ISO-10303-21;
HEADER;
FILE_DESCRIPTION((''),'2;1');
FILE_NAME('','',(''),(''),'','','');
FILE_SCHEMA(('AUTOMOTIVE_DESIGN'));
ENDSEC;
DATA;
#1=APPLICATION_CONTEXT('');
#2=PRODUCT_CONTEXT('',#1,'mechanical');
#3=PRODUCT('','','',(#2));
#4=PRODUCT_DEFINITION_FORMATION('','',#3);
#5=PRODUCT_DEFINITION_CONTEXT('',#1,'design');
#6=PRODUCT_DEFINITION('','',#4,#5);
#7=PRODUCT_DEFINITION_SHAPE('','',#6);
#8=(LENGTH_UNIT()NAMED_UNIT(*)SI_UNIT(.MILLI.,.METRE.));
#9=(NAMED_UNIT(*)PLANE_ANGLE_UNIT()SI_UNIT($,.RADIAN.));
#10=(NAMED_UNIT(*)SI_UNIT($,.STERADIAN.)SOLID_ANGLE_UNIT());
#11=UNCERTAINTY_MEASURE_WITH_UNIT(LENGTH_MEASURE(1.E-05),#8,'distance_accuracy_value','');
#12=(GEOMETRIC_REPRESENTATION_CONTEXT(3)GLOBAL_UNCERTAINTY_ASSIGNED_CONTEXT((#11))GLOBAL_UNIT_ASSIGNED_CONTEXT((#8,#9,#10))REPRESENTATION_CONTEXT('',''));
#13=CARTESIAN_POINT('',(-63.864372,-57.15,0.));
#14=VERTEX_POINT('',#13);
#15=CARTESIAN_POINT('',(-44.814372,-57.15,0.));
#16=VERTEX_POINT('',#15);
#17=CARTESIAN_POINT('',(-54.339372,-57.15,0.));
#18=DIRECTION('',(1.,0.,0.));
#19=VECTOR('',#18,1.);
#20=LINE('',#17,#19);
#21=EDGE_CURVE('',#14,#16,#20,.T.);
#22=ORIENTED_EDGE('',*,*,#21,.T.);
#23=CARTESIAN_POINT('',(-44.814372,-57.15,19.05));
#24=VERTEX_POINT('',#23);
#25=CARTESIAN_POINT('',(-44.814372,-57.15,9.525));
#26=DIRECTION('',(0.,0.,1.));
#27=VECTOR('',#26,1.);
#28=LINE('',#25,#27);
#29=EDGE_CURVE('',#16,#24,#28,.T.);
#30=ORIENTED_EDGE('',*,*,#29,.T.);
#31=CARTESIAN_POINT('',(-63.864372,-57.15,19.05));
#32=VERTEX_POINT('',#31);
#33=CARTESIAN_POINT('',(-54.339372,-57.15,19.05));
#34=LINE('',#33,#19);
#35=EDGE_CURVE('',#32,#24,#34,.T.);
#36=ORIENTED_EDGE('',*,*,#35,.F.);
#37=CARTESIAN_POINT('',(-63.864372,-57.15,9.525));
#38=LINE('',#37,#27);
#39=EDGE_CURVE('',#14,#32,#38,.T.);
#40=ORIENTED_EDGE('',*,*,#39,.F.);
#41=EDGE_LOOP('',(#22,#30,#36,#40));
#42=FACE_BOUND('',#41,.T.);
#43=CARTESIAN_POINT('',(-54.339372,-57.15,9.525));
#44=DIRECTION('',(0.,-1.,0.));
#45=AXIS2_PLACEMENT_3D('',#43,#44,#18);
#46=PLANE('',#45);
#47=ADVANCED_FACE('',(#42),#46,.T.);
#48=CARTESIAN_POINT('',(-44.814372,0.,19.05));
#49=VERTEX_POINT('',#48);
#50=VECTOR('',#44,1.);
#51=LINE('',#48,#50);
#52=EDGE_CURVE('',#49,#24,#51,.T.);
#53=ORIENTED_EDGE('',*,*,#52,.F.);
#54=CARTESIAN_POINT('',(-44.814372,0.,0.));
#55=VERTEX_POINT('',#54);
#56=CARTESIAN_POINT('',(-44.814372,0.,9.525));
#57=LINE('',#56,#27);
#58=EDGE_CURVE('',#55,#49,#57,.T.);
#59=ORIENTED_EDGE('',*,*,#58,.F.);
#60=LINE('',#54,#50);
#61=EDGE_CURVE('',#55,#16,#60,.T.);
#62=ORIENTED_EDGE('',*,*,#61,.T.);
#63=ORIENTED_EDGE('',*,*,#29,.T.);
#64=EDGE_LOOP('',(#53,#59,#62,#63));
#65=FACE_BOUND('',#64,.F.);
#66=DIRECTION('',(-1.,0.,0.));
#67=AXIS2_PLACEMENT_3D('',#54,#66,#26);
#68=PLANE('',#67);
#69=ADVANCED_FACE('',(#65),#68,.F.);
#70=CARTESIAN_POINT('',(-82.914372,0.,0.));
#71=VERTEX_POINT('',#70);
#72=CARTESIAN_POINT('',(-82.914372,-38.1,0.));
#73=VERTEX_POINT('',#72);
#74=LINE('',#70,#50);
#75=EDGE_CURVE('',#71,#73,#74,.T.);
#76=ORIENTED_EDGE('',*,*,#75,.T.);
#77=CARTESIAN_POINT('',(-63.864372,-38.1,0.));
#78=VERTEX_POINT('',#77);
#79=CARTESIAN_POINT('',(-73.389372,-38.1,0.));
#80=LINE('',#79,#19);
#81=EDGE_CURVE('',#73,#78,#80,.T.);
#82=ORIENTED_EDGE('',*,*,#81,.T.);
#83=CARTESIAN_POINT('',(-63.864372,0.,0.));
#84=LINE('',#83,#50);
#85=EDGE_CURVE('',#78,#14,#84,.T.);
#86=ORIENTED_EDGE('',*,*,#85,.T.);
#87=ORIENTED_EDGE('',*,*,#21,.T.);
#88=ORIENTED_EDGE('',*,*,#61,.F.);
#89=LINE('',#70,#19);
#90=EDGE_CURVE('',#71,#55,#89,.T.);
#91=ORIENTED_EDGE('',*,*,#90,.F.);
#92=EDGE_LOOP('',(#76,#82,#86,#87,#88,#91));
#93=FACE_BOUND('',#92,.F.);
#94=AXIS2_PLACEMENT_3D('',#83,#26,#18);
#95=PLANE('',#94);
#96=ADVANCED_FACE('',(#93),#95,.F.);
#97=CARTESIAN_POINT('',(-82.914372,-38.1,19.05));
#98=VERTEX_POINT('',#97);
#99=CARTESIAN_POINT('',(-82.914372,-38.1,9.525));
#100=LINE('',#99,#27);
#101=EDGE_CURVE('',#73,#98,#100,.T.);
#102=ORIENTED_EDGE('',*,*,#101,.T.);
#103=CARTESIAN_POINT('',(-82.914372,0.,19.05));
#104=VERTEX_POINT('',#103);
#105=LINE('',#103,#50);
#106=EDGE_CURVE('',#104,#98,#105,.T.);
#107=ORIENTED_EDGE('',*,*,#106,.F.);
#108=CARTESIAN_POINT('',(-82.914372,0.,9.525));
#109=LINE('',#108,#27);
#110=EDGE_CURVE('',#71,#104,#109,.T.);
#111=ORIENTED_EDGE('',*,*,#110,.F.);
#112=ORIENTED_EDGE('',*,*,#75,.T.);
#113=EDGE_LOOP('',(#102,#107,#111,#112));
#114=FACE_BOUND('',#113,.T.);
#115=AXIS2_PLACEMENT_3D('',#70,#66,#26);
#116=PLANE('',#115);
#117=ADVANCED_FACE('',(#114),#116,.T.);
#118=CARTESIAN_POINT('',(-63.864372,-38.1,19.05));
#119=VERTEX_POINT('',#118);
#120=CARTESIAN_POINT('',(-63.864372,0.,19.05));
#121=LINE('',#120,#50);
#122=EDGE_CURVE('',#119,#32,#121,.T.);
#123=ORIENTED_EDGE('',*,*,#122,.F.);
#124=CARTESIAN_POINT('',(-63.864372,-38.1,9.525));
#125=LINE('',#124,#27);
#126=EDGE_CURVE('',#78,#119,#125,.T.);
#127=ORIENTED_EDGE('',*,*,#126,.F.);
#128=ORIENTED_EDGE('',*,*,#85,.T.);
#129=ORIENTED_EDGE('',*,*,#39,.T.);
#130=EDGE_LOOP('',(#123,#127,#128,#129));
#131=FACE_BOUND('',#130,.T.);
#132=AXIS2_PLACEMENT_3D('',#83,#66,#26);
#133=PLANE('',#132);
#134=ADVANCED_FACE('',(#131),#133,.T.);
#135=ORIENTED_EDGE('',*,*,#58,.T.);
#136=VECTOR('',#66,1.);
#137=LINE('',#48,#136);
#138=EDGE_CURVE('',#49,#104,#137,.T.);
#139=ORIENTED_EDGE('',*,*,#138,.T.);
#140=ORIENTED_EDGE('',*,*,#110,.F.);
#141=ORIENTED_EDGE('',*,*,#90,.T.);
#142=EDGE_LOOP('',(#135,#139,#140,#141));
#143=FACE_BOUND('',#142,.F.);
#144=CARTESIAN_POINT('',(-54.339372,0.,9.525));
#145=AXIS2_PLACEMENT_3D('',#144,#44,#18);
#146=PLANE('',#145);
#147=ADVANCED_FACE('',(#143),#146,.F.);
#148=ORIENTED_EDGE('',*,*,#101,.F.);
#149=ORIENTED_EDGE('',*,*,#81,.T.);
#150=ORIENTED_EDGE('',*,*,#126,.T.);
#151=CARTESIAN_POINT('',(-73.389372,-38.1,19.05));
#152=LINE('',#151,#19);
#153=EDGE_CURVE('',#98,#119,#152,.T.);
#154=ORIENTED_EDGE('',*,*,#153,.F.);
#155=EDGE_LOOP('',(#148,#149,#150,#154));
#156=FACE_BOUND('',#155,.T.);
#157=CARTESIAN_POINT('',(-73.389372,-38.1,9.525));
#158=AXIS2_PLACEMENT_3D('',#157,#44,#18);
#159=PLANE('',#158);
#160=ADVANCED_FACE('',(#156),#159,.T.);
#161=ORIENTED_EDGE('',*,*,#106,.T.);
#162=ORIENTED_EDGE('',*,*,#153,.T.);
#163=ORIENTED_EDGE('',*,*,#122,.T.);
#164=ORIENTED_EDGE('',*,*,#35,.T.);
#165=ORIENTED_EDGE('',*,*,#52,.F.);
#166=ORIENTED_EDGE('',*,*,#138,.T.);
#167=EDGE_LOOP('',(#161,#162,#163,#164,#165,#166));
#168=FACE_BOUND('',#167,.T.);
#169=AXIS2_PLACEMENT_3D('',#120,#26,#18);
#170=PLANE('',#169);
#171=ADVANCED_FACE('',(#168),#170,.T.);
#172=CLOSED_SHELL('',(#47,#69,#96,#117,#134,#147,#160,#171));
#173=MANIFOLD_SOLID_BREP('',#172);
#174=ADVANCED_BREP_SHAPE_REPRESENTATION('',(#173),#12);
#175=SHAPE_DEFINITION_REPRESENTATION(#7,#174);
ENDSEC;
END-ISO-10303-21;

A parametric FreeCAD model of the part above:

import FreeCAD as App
import Part
import Sketcher
Q = App.Units.Quantity


def add_polygon(sketch, points):
    """Adds a closed chain of lines whose ends are joined by coincident constraints."""
    first, n = sketch.GeometryCount, len(points)
    for a, b in zip(points, points[1:] + points[:1]):
        sketch.addGeometry(Part.LineSegment(App.Vector(*a, 0), App.Vector(*b, 0)), False)
    for i in range(n):
        sketch.addConstraint(Sketcher.Constraint("Coincident", first + i, 2, first + (i + 1) % n, 1))

doc = App.newDocument("Part")
body = doc.addObject("PartDesign::Body", "Body")

# Sketch on XZ plane
sketch1 = body.newObject("Sketcher::SketchObject", "Sketch")
sketch1.AttachmentSupport = (doc.getObject("XZ_Plane"), [""])
sketch1.MapMode = "FlatFace"
add_polygon(sketch1, [(-83, 19), (-83, 0), (-64, 0), (-64, 19)])  # lines 0-3
sketch1.addConstraint([
    Sketcher.Constraint("Vertical", 0),
    Sketcher.Constraint("Horizontal", 1),
    Sketcher.Constraint("Vertical", 2),
    Sketcher.Constraint("Horizontal", 3),
    Sketcher.Constraint("PointOnObject", 0, 2, -1),
    Sketcher.Constraint("Equal", 3, 0),
    Sketcher.Constraint("DistanceX", 1, 1, 1, 2, Q("0.75 in")),
    Sketcher.Constraint("DistanceX", 0, 2, -1, 1, Q("82.914372 mm")),
])
pad1 = body.newObject("PartDesign::Pad", "Pad")
pad1.Profile = sketch1
pad1.Length = Q("1.5 in")

# Sketch on XZ plane
sketch2 = body.newObject("Sketcher::SketchObject", "Sketch001")
sketch2.AttachmentSupport = (doc.getObject("XZ_Plane"), [""])
sketch2.MapMode = "FlatFace"
add_polygon(sketch2, [(-64, 19), (-64, 0), (-45, 0), (-45, 19)])  # lines 0-3
sketch2.addConstraint([
    Sketcher.Constraint("Vertical", 0),
    Sketcher.Constraint("Horizontal", 1),
    Sketcher.Constraint("Vertical", 2),
    Sketcher.Constraint("Horizontal", 3),
    Sketcher.Constraint("PointOnObject", 0, 2, -1),
    Sketcher.Constraint("Equal", 3, 0),
    Sketcher.Constraint("DistanceX", 1, 1, 1, 2, Q("0.75 in")),
    Sketcher.Constraint("DistanceX", 0, 2, -1, 1, Q("63.864372 mm")),
])
pad2 = body.newObject("PartDesign::Pad", "Pad001")
pad2.Profile = sketch2
pad2.Length = Q("2.25 in")

doc.recompute()
